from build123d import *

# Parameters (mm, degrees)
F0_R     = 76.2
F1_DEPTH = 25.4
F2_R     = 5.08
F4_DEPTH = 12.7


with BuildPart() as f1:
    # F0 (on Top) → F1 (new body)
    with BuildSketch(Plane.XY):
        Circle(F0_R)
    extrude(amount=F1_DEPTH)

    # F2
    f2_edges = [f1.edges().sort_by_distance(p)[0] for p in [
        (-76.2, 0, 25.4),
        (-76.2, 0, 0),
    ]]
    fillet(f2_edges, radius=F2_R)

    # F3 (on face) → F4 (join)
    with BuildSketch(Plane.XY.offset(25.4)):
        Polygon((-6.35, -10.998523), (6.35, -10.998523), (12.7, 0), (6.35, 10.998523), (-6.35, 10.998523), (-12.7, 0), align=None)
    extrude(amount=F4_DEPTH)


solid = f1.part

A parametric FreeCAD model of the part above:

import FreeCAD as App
import Part
import Sketcher

V = App.Vector
Q = App.Units.Quantity


def edges_at(feature, points):
    """Names of the edges that pass closest to the given points."""
    edges = feature.Shape.Edges
    near = lambda p: min(range(len(edges)), key=lambda i: edges[i].distToShape(Part.Vertex(*p))[0])
    return sorted({f"Edge{near(p) + 1}" for p in points})

doc = App.newDocument("Part")
body = doc.addObject("PartDesign::Body", "Body")

sketch1 = body.newObject("Sketcher::SketchObject", "Sketch")
sketch1.AttachmentSupport = (doc.getObject("XY_Plane"), [""])
sketch1.MapMode = "FlatFace"
sketch1.addGeometry(Part.Circle(V(0, 0, 0), V(0, 0, 1), 76), False)
sketch1.addConstraint([
    Sketcher.Constraint("Coincident", 0, 3, -1, 1),
    Sketcher.Constraint("Diameter", 0, Q("6 in")),
])
pad1 = body.newObject("PartDesign::Pad", "Pad")
pad1.Profile = sketch1
pad1.Length = Q("1 in")
doc.recompute()

fillet = body.newObject("PartDesign::Fillet", "Fillet")
fillet.Base = (pad1, edges_at(pad1, [(-76.2, 0, 25.4), (-76.2, 0, 0)]))
fillet.Radius = Q("0.2 in")

sketch2 = body.newObject("Sketcher::SketchObject", "Sketch001")
sketch2.AttachmentSupport = (doc.getObject("XY_Plane"), [""])
sketch2.MapMode = "FlatFace"
sketch2.AttachmentOffset = App.Placement(V(0, 0, 1 * 25.4), App.Rotation())
sketch2.addGeometry([
    Part.LineSegment(V(-6, -11, 0), V(6, -11, 0)),
    Part.LineSegment(V(6, -11, 0), V(13, 0, 0)),
    Part.LineSegment(V(13, 0, 0), V(6, 11, 0)),
    Part.LineSegment(V(6, 11, 0), V(-6, 11, 0)),
    Part.LineSegment(V(-6, 11, 0), V(-13, 0, 0)),
    Part.LineSegment(V(-13, 0, 0), V(-6, -11, 0)),
], False)
sketch2.addConstraint([
    Sketcher.Constraint("Coincident", 0, 2, 1, 1),
    Sketcher.Constraint("Coincident", 1, 2, 2, 1),
    Sketcher.Constraint("Coincident", 2, 2, 3, 1),
    Sketcher.Constraint("Coincident", 3, 2, 4, 1),
    Sketcher.Constraint("Coincident", 4, 2, 5, 1),
    Sketcher.Constraint("Coincident", 5, 2, 0, 1),
    Sketcher.Constraint("Horizontal", 0),
    Sketcher.Constraint("Horizontal", 3),
    Sketcher.Constraint("Symmetric", 0, 2, 3, 2, -1, 1),
    Sketcher.Constraint("Symmetric", 1, 2, 4, 2, -1, 1),
    Sketcher.Constraint("PointOnObject", 1, 2, -1),
    Sketcher.Constraint("Parallel", 2, 5),
    Sketcher.Constraint("Vertical", 0, 2, 2, 2),
    Sketcher.Constraint("DistanceX", 0, 1, 0, 2, Q("0.5 in")),
    Sketcher.Constraint("Angle", 1, Q("60.000001 deg")),
    Sketcher.Constraint("DistanceX", 4, 2, 1, 2, Q("1 in")),
])
pad2 = body.newObject("PartDesign::Pad", "Pad001")
pad2.Profile = sketch2
pad2.Length = Q("0.5 in")

doc.recompute()
